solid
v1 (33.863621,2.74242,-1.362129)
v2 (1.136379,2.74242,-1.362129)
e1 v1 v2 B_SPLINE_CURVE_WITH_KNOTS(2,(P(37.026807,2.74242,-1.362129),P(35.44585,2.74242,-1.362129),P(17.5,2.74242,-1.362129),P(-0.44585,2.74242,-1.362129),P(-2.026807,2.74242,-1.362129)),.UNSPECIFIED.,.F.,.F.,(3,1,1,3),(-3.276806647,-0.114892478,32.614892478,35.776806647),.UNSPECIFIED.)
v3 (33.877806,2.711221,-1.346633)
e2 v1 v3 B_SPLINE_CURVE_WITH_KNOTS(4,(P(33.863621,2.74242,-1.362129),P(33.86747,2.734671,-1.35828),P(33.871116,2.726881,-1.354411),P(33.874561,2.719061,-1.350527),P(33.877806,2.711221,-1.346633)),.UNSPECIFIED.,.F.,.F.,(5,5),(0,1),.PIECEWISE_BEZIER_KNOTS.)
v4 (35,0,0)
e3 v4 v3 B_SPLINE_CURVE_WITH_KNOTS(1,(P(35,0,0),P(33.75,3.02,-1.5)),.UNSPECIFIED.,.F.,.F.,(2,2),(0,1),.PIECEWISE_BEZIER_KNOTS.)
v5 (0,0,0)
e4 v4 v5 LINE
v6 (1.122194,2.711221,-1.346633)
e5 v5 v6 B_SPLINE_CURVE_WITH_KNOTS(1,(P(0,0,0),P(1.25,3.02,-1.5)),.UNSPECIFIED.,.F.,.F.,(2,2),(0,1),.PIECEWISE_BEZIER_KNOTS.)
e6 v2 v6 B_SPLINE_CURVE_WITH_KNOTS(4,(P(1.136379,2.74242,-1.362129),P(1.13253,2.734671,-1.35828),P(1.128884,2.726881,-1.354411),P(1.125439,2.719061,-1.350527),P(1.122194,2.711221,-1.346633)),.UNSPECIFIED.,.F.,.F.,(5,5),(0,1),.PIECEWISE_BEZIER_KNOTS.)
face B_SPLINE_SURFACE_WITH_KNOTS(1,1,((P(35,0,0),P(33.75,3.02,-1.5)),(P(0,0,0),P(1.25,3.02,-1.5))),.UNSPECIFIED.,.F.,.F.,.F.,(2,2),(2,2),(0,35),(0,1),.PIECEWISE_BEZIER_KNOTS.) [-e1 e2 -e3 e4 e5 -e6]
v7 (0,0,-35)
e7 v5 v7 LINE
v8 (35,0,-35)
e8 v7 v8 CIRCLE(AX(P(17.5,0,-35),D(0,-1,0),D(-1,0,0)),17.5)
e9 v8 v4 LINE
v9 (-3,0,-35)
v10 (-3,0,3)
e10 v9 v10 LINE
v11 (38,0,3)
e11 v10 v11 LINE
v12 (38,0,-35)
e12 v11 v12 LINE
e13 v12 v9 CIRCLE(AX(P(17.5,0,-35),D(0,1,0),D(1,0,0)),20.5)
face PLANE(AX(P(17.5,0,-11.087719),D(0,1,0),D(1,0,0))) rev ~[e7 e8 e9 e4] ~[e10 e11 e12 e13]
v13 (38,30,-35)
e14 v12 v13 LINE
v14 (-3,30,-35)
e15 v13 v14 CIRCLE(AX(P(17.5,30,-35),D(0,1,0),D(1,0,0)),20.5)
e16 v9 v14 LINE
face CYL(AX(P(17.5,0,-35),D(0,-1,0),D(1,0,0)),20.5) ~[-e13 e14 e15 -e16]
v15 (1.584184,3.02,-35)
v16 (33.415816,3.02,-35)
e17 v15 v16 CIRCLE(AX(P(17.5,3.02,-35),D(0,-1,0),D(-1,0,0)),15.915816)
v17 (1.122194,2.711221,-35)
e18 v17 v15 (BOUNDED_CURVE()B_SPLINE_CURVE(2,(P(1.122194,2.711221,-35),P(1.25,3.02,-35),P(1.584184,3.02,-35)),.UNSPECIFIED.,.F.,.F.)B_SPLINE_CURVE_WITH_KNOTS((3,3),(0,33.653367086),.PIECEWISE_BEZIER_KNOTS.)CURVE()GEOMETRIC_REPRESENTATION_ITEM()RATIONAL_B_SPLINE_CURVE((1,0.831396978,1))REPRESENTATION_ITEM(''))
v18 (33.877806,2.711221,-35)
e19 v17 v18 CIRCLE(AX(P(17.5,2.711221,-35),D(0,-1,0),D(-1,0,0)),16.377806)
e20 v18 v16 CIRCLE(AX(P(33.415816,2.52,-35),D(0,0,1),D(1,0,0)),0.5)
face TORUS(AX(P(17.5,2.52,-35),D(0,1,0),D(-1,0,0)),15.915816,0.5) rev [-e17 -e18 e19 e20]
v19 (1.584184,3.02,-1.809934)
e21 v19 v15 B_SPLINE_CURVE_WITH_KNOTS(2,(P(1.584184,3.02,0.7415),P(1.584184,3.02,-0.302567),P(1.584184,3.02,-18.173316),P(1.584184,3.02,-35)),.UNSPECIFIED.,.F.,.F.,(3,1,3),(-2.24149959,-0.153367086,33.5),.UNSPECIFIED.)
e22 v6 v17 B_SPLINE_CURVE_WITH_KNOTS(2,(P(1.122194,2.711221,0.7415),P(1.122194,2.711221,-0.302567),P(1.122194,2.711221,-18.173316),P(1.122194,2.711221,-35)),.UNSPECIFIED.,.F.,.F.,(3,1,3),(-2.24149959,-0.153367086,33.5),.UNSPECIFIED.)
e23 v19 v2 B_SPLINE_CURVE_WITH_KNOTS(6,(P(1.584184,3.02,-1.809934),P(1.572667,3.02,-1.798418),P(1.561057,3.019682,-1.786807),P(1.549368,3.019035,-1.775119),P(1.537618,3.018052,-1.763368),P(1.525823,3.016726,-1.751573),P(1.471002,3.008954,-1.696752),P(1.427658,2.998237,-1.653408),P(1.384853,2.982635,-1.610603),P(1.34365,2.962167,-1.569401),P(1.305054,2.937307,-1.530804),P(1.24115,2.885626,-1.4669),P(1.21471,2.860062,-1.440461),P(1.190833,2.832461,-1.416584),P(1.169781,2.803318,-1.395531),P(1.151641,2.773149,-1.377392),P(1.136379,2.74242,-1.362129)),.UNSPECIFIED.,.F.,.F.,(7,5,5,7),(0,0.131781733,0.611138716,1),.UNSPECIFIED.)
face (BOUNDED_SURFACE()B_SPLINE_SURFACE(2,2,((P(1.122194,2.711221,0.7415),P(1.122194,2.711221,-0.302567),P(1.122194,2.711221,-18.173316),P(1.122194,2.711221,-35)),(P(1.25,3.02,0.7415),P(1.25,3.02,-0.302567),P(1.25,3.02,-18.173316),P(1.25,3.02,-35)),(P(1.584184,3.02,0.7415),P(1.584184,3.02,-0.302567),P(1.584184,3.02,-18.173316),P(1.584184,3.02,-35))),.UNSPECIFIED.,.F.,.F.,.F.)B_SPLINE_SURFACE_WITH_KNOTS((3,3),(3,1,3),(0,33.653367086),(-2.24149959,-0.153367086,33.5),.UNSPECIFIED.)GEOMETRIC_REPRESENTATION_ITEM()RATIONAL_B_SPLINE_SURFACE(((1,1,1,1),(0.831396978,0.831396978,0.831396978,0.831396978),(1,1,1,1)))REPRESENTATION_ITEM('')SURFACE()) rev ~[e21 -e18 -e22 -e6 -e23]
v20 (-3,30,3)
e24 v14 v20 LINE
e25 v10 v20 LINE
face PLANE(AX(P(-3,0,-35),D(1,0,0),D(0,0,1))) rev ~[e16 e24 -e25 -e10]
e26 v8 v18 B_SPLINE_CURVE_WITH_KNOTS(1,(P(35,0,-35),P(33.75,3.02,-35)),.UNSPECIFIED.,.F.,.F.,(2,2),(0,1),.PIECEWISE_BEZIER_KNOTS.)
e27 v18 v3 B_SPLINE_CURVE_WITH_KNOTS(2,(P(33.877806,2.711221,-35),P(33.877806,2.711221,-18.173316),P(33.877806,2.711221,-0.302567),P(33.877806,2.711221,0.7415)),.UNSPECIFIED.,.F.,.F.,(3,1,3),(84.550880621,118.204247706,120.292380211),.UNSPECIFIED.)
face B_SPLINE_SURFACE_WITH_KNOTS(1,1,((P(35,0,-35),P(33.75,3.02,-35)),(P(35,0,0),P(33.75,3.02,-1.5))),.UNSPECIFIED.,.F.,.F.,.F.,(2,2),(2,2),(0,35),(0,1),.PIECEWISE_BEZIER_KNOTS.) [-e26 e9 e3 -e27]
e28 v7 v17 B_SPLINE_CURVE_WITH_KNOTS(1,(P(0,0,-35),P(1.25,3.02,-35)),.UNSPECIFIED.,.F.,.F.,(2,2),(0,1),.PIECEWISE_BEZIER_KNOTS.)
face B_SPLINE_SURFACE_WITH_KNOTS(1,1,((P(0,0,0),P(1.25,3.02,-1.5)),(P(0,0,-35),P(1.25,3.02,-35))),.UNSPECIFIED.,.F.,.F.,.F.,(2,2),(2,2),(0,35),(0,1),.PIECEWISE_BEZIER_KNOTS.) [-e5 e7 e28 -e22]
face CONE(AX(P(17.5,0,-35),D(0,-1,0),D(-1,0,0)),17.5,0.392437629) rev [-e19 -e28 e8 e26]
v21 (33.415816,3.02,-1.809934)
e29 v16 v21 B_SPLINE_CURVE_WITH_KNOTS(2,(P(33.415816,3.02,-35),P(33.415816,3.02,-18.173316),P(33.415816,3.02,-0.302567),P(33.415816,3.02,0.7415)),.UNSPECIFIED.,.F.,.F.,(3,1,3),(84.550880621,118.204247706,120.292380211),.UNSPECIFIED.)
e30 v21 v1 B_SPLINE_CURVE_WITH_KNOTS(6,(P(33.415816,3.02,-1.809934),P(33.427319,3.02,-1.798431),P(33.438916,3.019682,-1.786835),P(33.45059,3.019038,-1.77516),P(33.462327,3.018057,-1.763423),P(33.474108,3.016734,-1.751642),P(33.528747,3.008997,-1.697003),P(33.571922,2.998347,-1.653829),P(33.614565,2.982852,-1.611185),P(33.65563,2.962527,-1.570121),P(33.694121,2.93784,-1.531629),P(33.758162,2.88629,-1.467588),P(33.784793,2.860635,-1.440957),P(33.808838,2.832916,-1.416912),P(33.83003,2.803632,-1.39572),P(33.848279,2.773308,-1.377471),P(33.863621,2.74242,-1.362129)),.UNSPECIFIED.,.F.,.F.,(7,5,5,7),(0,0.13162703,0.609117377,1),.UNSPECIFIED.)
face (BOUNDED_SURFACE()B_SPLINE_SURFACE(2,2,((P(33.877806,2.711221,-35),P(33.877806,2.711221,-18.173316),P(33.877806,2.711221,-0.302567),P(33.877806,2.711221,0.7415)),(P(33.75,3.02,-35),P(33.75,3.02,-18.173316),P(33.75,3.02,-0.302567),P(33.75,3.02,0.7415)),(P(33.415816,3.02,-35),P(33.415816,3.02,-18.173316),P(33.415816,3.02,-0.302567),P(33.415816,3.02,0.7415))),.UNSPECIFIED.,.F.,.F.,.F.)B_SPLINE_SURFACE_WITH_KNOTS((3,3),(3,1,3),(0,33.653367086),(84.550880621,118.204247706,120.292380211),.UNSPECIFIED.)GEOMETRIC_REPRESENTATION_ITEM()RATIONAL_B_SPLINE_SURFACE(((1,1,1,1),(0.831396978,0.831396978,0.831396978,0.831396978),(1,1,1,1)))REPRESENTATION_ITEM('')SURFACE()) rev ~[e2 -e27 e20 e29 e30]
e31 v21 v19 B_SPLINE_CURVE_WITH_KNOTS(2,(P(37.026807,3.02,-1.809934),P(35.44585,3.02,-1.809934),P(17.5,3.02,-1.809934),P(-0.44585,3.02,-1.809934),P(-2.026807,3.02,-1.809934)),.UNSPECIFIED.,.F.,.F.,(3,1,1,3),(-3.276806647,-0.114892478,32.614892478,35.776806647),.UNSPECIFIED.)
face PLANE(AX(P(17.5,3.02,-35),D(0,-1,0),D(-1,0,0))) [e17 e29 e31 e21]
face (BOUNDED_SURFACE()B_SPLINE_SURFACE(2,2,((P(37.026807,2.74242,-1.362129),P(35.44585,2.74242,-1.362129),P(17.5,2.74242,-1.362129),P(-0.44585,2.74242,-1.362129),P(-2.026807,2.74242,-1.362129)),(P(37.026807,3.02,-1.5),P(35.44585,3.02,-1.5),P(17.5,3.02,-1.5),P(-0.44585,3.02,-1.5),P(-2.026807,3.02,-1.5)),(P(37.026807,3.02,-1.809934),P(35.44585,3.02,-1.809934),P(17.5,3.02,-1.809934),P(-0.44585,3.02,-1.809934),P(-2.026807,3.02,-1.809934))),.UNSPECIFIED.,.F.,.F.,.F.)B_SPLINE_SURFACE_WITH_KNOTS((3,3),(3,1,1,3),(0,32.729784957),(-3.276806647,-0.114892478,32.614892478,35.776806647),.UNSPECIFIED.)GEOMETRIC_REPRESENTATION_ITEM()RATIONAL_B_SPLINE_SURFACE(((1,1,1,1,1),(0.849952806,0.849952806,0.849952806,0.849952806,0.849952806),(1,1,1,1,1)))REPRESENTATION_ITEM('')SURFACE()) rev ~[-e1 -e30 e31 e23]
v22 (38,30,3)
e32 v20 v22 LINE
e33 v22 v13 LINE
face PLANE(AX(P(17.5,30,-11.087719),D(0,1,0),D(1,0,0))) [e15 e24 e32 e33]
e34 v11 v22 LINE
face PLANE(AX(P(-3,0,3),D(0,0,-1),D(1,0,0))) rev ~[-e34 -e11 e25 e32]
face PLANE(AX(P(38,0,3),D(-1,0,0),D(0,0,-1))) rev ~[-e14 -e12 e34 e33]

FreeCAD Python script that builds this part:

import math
import FreeCAD as App
import Part
import Sketcher

V = App.Vector


def edges_at(feature, points):
    """Names of the edges that pass closest to the given points."""
    edges = feature.Shape.Edges
    near = lambda p: min(range(len(edges)), key=lambda i: edges[i].distToShape(Part.Vertex(*p))[0])
    return sorted({f"Edge{near(p) + 1}" for p in points})

doc = App.newDocument("Part")
body = doc.addObject("PartDesign::Body", "Body")

sketch1 = doc.addObject("Sketcher::SketchObject", "Sketch")
body.addObject(sketch1)
sketch1.AttachmentSupport = (doc.XZ_Plane, [""])
sketch1.MapMode = "FlatFace"
sketch1.addGeometry([
    Part.LineSegment(V(-3, -35, 0), V(-3, 3, 0)),
    Part.LineSegment(V(-3, 3, 0), V(38, 3, 0)),
    Part.LineSegment(V(38, 3, 0), V(38, -35, 0)),
    Part.ArcOfCircle(Part.Circle(V(17.5, -35, 0), V(0, 0, 1), 20.5), math.radians(180), math.radians(360)),
], False)
sketch1.addConstraint([
    Sketcher.Constraint("Coincident", 0, 2, 1, 1),
    Sketcher.Constraint("Coincident", 1, 2, 2, 1),
    Sketcher.Constraint("Tangent", 2, 2, 3, 2),
    Sketcher.Constraint("Tangent", 3, 1, 0, 1),
    Sketcher.Constraint("Vertical", 0),
    Sketcher.Constraint("Horizontal", 1),
    Sketcher.Constraint("Vertical", 2),
    Sketcher.Constraint("Radius", 3, 20.5),
    Sketcher.Constraint("DistanceY", 0, 1, 0, 2, 38.0),
    Sketcher.Constraint("DistanceY", 3, 3, -1, 1, 35.0),
    Sketcher.Constraint("DistanceX", 0, 2, -1, 1, 3.0),
])
pad1 = doc.addObject("PartDesign::Pad", "Pad")
body.addObject(pad1)
pad1.Profile = sketch1
pad1.Length = 30
pad1.Reversed = True

sketch2 = doc.addObject("Sketcher::SketchObject", "Sketch001")
body.addObject(sketch2)
sketch2.AttachmentSupport = (doc.XZ_Plane, [""])
sketch2.MapMode = "FlatFace"
sketch2.addGeometry([
    Part.LineSegment(V(0, -35, 0), V(0, 0, 0)),
    Part.LineSegment(V(0, 0, 0), V(35, 0, 0)),
    Part.LineSegment(V(35, 0, 0), V(35, -35, 0)),
    Part.ArcOfCircle(Part.Circle(V(17.5, -35, 0), V(0, 0, 1), 17.5), math.radians(180), math.radians(360)),
], False)
sketch2.addConstraint([
    Sketcher.Constraint("Coincident", 0, 2, 1, 1),
    Sketcher.Constraint("Coincident", 1, 2, 2, 1),
    Sketcher.Constraint("Tangent", 2, 2, 3, 2),
    Sketcher.Constraint("Tangent", 3, 1, 0, 1),
    Sketcher.Constraint("Vertical", 0),
    Sketcher.Constraint("Horizontal", 1),
    Sketcher.Constraint("Vertical", 2),
    Sketcher.Constraint("Coincident", 0, 2, -1, 1),
    Sketcher.Constraint("Equal", 1, 0),
    Sketcher.Constraint("Radius", 3, 17.5),
])

sketch3 = doc.addObject("Sketcher::SketchObject", "Sketch002")
body.addObject(sketch3)
sketch3.AttachmentSupport = (doc.XZ_Plane, [""])
sketch3.MapMode = "FlatFace"
sketch3.AttachmentOffset = App.Placement(V(0, 0, -3.02), App.Rotation())
sketch3.addGeometry([
    Part.LineSegment(V(33.75, -1.5, 0), V(1.25, -1.5, 0)),
    Part.LineSegment(V(1.25, -1.5, 0), V(1.25, -35, 0)),
    Part.ArcOfCircle(Part.Circle(V(17.5, -35, 0), V(0, 0, 1), 16.25), math.radians(180), math.radians(360)),
    Part.LineSegment(V(33.75, -35, 0), V(33.75, -1.5, 0)),
], False)
sketch3.addConstraint([
    Sketcher.Constraint("Coincident", 0, 2, 1, 1),
    Sketcher.Constraint("Tangent", 1, 2, 2, 1),
    Sketcher.Constraint("Tangent", 2, 2, 3, 1),
    Sketcher.Constraint("Coincident", 3, 2, 0, 1),
    Sketcher.Constraint("Horizontal", 0),
    Sketcher.Constraint("Vertical", 1),
    Sketcher.Constraint("Vertical", 3),
    Sketcher.Constraint("Radius", 2, 16.25),
    Sketcher.Constraint("DistanceY", 1, 2, 1, 1, 33.5),
    Sketcher.Constraint("DistanceY", 2, 3, -1, 1, 35.0),
    Sketcher.Constraint("DistanceX", -1, 1, 2, 3, 17.5),
])

subtractiveloft = doc.addObject("PartDesign::SubtractiveLoft", "SubtractiveLoft")
body.addObject(subtractiveloft)
subtractiveloft.Profile = sketch2
subtractiveloft.Sections = [sketch3]
doc.recompute()

fillet = doc.addObject("PartDesign::Fillet", "Fillet")
body.addObject(fillet)
fillet.Base = (subtractiveloft, edges_at(subtractiveloft, [
    (1.25, 3.02, -18.25),
    (33.75, 3.02, -18.25),
    (17.5, 3.02, -1.5),
    (17.5, 3.02, -51.25),
]))
fillet.Radius = 0.5

doc.recompute()
